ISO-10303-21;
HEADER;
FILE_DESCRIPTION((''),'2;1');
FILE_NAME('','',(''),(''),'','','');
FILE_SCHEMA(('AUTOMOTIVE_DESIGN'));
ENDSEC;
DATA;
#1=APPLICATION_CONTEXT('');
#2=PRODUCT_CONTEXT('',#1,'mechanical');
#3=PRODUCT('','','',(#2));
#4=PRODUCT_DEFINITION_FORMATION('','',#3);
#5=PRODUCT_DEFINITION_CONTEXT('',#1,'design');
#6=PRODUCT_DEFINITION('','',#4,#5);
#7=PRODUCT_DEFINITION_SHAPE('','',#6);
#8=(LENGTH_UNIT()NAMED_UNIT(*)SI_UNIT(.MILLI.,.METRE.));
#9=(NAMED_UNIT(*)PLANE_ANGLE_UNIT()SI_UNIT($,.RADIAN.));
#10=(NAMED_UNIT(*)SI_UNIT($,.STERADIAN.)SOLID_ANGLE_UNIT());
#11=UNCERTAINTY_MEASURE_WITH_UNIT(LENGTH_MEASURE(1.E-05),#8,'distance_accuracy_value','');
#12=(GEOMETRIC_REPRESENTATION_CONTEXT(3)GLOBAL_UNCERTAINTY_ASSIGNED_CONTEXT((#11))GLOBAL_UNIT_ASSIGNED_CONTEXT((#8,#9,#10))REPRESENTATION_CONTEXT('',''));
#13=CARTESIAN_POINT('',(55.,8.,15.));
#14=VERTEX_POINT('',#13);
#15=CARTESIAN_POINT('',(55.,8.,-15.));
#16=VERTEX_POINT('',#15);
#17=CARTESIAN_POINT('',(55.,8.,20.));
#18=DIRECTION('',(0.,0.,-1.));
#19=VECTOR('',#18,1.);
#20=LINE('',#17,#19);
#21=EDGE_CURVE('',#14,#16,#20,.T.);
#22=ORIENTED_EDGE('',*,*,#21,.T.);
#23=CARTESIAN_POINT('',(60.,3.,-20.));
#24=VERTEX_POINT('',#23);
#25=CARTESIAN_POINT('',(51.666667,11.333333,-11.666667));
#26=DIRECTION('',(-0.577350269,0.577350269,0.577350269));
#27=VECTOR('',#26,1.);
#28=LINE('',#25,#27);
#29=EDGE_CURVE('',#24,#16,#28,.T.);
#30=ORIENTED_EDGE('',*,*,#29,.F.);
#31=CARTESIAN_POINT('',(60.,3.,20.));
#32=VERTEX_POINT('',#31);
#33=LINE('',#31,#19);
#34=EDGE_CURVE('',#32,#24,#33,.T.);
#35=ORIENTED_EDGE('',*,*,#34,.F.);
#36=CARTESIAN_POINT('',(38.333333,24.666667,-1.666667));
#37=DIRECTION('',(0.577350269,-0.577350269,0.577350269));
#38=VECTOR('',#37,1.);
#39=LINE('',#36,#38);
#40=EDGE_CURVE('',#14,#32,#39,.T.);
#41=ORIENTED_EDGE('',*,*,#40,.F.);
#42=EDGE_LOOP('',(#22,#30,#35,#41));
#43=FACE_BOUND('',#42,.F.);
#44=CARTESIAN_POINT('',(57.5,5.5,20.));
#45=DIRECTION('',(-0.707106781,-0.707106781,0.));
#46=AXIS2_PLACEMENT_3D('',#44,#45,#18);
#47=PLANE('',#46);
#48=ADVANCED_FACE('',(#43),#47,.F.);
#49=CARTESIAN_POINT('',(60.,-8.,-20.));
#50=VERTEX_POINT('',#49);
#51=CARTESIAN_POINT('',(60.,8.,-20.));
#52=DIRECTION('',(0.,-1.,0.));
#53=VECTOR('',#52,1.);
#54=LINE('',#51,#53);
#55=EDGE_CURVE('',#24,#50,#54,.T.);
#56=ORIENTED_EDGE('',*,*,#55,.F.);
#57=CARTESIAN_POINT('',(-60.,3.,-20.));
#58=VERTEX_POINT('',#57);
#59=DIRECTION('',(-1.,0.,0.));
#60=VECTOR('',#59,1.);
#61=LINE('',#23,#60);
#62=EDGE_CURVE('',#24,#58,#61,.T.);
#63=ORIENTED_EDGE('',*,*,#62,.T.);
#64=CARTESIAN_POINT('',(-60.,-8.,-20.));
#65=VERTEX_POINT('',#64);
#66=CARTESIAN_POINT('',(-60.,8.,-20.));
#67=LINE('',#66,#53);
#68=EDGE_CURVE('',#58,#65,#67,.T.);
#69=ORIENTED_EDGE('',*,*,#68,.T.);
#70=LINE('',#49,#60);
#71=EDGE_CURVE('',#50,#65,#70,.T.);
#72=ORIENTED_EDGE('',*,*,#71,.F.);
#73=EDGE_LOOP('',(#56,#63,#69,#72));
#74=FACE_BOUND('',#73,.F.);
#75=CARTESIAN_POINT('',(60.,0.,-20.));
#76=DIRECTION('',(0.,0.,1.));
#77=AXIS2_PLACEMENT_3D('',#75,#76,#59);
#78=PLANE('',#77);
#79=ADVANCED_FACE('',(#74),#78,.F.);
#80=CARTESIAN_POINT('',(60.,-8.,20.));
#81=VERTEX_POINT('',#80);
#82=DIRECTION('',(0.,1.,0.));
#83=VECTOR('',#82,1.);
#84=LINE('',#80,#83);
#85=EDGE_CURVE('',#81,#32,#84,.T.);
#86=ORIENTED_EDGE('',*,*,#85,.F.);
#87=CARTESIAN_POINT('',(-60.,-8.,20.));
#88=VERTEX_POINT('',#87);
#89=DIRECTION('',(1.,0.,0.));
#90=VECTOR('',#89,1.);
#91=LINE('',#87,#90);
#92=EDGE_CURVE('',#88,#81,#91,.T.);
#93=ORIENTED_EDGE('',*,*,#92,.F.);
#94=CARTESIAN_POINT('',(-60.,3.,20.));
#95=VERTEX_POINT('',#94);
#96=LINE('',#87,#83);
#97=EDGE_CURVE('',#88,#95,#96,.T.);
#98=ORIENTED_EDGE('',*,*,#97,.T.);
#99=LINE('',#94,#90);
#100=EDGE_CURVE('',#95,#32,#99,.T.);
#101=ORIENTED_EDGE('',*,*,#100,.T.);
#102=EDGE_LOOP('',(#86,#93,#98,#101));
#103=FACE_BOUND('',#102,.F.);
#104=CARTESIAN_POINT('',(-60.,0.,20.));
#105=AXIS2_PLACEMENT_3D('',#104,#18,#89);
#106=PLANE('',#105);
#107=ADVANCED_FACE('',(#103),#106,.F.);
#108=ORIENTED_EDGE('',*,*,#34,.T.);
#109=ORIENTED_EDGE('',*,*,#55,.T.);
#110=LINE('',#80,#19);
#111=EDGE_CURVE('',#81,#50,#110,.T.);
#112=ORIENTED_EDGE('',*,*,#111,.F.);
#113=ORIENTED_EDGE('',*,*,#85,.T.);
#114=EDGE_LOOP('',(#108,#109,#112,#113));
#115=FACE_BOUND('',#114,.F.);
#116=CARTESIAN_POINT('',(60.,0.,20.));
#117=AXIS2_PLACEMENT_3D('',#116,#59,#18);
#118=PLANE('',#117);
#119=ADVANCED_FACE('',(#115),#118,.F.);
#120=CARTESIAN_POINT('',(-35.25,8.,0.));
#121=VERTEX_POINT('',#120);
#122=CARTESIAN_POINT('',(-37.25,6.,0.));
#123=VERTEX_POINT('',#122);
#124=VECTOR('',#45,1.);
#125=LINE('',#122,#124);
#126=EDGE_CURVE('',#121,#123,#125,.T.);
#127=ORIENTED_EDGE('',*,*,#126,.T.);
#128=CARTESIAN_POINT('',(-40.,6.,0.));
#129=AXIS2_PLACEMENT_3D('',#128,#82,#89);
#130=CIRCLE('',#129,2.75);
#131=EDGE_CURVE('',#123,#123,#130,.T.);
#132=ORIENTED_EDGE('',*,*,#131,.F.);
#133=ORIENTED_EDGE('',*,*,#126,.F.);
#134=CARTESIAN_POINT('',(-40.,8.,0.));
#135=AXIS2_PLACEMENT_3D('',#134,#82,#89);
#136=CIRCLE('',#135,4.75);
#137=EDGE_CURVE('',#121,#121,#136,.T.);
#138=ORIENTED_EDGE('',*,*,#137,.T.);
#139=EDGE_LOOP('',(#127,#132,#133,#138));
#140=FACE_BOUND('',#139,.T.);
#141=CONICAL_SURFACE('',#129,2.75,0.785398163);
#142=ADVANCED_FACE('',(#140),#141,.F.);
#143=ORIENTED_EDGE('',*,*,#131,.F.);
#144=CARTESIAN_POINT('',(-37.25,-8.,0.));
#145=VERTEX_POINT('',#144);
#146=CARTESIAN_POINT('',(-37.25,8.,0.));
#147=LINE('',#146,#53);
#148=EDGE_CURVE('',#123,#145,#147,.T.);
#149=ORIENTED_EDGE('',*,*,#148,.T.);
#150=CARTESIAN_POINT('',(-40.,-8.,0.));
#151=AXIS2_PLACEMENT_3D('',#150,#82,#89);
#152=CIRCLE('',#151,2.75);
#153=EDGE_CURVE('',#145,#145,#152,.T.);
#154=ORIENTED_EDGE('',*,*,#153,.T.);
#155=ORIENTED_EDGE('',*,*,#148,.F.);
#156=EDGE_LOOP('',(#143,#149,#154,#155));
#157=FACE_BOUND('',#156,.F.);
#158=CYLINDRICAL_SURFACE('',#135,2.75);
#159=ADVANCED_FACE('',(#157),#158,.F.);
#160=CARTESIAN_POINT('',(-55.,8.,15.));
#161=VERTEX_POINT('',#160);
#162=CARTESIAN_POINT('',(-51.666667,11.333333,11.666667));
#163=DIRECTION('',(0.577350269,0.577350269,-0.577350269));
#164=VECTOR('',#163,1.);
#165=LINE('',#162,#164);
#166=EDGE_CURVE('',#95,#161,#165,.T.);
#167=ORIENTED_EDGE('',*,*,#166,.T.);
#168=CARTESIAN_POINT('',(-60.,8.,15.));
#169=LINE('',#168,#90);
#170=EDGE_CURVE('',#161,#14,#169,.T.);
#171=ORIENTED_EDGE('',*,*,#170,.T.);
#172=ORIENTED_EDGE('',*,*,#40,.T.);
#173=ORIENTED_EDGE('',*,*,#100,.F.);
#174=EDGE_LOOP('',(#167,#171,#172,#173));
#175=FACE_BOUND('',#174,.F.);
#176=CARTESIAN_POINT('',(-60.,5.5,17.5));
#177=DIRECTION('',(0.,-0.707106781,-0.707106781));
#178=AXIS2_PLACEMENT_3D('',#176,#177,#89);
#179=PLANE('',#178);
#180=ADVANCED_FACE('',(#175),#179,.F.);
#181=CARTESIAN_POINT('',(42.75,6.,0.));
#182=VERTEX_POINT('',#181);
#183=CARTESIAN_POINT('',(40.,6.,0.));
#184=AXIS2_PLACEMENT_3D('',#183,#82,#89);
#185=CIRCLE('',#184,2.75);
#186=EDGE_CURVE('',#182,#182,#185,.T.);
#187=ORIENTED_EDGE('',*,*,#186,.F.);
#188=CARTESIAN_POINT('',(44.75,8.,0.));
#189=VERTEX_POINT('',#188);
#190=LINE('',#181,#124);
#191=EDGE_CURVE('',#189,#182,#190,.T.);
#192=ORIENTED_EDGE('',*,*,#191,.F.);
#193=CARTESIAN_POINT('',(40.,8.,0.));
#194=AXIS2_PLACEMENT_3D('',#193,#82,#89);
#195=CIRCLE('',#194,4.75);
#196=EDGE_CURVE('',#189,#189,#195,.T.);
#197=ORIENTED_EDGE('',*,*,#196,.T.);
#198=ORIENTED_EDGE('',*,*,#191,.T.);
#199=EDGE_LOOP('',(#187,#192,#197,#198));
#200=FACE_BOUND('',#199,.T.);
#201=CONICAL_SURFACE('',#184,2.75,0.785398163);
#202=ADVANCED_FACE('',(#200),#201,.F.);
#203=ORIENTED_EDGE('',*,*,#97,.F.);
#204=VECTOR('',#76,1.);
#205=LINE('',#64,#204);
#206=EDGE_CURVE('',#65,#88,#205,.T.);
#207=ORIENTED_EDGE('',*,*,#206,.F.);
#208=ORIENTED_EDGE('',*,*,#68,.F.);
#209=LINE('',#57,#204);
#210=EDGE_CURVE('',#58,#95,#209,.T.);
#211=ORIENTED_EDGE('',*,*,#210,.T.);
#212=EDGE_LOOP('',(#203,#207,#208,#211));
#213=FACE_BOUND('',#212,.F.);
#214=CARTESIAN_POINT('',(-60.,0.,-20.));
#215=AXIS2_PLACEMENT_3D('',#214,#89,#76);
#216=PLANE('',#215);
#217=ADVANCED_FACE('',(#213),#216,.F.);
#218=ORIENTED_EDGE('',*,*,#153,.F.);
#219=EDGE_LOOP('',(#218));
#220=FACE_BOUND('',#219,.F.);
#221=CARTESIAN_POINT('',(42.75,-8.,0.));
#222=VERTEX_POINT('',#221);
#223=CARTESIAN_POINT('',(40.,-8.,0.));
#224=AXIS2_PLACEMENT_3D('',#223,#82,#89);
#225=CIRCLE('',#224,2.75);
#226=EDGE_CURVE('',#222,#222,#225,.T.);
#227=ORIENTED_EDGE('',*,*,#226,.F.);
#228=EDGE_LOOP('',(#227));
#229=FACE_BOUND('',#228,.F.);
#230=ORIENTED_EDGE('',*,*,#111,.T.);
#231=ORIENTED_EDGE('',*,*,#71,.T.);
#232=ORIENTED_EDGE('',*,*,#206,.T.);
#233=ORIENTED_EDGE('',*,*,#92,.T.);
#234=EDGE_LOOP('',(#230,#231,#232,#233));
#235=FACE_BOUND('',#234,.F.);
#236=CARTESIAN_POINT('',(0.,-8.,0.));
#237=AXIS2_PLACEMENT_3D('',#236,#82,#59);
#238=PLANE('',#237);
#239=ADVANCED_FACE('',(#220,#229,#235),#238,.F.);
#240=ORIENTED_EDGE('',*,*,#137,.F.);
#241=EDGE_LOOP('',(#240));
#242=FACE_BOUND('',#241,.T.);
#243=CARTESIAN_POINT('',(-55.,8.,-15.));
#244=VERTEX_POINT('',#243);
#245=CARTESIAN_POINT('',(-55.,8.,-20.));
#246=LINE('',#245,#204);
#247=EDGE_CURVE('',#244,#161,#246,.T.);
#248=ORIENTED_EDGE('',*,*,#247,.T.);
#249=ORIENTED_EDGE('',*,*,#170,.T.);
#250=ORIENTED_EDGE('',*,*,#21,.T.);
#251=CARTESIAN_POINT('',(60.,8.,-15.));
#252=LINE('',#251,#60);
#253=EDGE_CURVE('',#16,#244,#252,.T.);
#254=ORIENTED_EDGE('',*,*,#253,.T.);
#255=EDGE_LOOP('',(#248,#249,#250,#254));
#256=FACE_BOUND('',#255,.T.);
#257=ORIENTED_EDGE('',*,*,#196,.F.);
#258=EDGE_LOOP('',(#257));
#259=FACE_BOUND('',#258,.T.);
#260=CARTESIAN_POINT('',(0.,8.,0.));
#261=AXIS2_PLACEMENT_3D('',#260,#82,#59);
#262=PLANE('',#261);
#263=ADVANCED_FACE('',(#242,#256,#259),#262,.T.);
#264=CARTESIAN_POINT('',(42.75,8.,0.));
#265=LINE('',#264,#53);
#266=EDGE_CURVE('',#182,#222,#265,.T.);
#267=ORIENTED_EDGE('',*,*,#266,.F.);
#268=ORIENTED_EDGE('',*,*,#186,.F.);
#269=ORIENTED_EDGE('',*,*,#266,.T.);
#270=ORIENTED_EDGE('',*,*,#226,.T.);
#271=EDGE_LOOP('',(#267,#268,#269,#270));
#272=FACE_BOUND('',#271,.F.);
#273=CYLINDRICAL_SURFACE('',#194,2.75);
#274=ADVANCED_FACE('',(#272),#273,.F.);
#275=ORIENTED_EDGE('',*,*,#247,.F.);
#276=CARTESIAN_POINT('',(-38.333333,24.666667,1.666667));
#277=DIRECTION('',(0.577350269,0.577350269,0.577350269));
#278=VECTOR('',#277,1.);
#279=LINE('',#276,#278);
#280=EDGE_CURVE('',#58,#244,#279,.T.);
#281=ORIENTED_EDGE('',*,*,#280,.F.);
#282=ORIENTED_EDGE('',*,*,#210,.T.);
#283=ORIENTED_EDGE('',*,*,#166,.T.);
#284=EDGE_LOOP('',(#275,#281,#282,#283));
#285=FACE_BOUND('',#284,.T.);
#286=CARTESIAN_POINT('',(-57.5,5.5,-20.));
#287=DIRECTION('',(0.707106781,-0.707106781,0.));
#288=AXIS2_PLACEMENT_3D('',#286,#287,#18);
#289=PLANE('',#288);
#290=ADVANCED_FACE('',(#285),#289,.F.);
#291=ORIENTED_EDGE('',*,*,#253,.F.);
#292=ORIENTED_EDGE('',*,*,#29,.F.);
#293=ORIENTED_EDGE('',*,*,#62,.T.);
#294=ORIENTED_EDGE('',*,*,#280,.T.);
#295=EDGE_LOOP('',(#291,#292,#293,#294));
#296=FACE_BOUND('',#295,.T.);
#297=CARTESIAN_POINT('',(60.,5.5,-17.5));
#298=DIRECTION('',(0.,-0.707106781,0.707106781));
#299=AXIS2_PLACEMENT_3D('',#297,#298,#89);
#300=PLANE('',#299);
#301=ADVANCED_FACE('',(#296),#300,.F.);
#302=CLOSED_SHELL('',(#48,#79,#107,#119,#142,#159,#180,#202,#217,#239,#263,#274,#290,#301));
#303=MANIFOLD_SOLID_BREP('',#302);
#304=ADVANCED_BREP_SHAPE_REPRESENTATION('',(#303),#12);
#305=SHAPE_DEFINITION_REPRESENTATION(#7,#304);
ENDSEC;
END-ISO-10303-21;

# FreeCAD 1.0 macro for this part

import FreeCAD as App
import Part
import Sketcher
Q = App.Units.Quantity


def edges_at(feature, points):
    """Names of the edges that pass closest to the given points."""
    edges = feature.Shape.Edges
    near = lambda p: min(range(len(edges)), key=lambda i: edges[i].distToShape(Part.Vertex(*p))[0])
    return sorted({f"Edge{near(p) + 1}" for p in points})


def add_polygon(sketch, points):
    """Adds a closed chain of lines whose ends are joined by coincident constraints."""
    first, n = sketch.GeometryCount, len(points)
    for a, b in zip(points, points[1:] + points[:1]):
        sketch.addGeometry(Part.LineSegment(App.Vector(*a, 0), App.Vector(*b, 0)), False)
    for i in range(n):
        sketch.addConstraint(Sketcher.Constraint("Coincident", first + i, 2, first + (i + 1) % n, 1))

doc = App.newDocument("Part")
body = doc.addObject("PartDesign::Body", "Body")

# Sketch on XZ plane
sketch1 = body.newObject("Sketcher::SketchObject", "Sketch")
sketch1.AttachmentSupport = (doc.getObject("XZ_Plane"), [""])
sketch1.MapMode = "FlatFace"
add_polygon(sketch1, [(-60, -20), (-60, 20), (60, 20), (60, -20)])  # lines 0-3
sketch1.addConstraint(Sketcher.Constraint("Vertical", 0))
sketch1.addConstraint(Sketcher.Constraint("Horizontal", 1))
sketch1.addConstraint(Sketcher.Constraint("Vertical", 2))
sketch1.addConstraint(Sketcher.Constraint("Horizontal", 3))
sketch1.addConstraint(Sketcher.Constraint("Symmetric", 0, 2, 2, 2, -1, 1))
sketch1.addConstraint(Sketcher.Constraint("DistanceX", 1, 1, 1, 2, Q("120 mm")))
sketch1.addConstraint(Sketcher.Constraint("DistanceY", 0, 1, 0, 2, Q("40 mm")))
pad1 = body.newObject("PartDesign::Pad", "Pad")
pad1.Profile = sketch1
pad1.Length = 16
pad1.Midplane = True

# Sketch on XZ plane
sketch2 = body.newObject("Sketcher::SketchObject", "Sketch001")
sketch2.AttachmentSupport = (doc.getObject("XZ_Plane"), [""])
sketch2.MapMode = "FlatFace"
sketch2.AttachmentOffset = App.Placement(App.Vector(0, 0, -8), App.Rotation())
sketch2.addGeometry(Part.Circle(App.Vector(-40, 0, 0), App.Vector(0, 0, 1), 2.75), False)
sketch2.addGeometry(Part.Circle(App.Vector(40, 0, 0), App.Vector(0, 0, 1), 2.75), False)
sketch2.addConstraint(Sketcher.Constraint("Equal", 0, 1))
sketch2.addConstraint(Sketcher.Constraint("Symmetric", 0, 3, 1, 3, -1, 1))
sketch2.addConstraint(Sketcher.Constraint("PointOnObject", 0, 3, -1))
sketch2.addConstraint(Sketcher.Constraint("Diameter", 0, Q("5.5 mm")))
sketch2.addConstraint(Sketcher.Constraint("DistanceX", 0, 3, -1, 1, Q("40 mm")))
pocket1 = body.newObject("PartDesign::Pocket", "Pocket")
pocket1.Profile = sketch2
pocket1.Type = "ThroughAll"
pocket1.Reversed = True
doc.recompute()

chamfer = body.newObject("PartDesign::Chamfer", "Chamfer")
chamfer.Base = (pocket1, edges_at(pocket1, [
    (-60, 8, 0),
    (0, 8, 20),
    (0, 8, -20),
    (60, 8, 0),
]))
chamfer.Size = 5
doc.recompute()

chamfer2 = body.newObject("PartDesign::Chamfer", "Chamfer001")
chamfer2.Base = (chamfer, edges_at(chamfer, [(-42.75, 8, 0), (37.25, 8, 0)]))
chamfer2.Size = 2

doc.recompute()
